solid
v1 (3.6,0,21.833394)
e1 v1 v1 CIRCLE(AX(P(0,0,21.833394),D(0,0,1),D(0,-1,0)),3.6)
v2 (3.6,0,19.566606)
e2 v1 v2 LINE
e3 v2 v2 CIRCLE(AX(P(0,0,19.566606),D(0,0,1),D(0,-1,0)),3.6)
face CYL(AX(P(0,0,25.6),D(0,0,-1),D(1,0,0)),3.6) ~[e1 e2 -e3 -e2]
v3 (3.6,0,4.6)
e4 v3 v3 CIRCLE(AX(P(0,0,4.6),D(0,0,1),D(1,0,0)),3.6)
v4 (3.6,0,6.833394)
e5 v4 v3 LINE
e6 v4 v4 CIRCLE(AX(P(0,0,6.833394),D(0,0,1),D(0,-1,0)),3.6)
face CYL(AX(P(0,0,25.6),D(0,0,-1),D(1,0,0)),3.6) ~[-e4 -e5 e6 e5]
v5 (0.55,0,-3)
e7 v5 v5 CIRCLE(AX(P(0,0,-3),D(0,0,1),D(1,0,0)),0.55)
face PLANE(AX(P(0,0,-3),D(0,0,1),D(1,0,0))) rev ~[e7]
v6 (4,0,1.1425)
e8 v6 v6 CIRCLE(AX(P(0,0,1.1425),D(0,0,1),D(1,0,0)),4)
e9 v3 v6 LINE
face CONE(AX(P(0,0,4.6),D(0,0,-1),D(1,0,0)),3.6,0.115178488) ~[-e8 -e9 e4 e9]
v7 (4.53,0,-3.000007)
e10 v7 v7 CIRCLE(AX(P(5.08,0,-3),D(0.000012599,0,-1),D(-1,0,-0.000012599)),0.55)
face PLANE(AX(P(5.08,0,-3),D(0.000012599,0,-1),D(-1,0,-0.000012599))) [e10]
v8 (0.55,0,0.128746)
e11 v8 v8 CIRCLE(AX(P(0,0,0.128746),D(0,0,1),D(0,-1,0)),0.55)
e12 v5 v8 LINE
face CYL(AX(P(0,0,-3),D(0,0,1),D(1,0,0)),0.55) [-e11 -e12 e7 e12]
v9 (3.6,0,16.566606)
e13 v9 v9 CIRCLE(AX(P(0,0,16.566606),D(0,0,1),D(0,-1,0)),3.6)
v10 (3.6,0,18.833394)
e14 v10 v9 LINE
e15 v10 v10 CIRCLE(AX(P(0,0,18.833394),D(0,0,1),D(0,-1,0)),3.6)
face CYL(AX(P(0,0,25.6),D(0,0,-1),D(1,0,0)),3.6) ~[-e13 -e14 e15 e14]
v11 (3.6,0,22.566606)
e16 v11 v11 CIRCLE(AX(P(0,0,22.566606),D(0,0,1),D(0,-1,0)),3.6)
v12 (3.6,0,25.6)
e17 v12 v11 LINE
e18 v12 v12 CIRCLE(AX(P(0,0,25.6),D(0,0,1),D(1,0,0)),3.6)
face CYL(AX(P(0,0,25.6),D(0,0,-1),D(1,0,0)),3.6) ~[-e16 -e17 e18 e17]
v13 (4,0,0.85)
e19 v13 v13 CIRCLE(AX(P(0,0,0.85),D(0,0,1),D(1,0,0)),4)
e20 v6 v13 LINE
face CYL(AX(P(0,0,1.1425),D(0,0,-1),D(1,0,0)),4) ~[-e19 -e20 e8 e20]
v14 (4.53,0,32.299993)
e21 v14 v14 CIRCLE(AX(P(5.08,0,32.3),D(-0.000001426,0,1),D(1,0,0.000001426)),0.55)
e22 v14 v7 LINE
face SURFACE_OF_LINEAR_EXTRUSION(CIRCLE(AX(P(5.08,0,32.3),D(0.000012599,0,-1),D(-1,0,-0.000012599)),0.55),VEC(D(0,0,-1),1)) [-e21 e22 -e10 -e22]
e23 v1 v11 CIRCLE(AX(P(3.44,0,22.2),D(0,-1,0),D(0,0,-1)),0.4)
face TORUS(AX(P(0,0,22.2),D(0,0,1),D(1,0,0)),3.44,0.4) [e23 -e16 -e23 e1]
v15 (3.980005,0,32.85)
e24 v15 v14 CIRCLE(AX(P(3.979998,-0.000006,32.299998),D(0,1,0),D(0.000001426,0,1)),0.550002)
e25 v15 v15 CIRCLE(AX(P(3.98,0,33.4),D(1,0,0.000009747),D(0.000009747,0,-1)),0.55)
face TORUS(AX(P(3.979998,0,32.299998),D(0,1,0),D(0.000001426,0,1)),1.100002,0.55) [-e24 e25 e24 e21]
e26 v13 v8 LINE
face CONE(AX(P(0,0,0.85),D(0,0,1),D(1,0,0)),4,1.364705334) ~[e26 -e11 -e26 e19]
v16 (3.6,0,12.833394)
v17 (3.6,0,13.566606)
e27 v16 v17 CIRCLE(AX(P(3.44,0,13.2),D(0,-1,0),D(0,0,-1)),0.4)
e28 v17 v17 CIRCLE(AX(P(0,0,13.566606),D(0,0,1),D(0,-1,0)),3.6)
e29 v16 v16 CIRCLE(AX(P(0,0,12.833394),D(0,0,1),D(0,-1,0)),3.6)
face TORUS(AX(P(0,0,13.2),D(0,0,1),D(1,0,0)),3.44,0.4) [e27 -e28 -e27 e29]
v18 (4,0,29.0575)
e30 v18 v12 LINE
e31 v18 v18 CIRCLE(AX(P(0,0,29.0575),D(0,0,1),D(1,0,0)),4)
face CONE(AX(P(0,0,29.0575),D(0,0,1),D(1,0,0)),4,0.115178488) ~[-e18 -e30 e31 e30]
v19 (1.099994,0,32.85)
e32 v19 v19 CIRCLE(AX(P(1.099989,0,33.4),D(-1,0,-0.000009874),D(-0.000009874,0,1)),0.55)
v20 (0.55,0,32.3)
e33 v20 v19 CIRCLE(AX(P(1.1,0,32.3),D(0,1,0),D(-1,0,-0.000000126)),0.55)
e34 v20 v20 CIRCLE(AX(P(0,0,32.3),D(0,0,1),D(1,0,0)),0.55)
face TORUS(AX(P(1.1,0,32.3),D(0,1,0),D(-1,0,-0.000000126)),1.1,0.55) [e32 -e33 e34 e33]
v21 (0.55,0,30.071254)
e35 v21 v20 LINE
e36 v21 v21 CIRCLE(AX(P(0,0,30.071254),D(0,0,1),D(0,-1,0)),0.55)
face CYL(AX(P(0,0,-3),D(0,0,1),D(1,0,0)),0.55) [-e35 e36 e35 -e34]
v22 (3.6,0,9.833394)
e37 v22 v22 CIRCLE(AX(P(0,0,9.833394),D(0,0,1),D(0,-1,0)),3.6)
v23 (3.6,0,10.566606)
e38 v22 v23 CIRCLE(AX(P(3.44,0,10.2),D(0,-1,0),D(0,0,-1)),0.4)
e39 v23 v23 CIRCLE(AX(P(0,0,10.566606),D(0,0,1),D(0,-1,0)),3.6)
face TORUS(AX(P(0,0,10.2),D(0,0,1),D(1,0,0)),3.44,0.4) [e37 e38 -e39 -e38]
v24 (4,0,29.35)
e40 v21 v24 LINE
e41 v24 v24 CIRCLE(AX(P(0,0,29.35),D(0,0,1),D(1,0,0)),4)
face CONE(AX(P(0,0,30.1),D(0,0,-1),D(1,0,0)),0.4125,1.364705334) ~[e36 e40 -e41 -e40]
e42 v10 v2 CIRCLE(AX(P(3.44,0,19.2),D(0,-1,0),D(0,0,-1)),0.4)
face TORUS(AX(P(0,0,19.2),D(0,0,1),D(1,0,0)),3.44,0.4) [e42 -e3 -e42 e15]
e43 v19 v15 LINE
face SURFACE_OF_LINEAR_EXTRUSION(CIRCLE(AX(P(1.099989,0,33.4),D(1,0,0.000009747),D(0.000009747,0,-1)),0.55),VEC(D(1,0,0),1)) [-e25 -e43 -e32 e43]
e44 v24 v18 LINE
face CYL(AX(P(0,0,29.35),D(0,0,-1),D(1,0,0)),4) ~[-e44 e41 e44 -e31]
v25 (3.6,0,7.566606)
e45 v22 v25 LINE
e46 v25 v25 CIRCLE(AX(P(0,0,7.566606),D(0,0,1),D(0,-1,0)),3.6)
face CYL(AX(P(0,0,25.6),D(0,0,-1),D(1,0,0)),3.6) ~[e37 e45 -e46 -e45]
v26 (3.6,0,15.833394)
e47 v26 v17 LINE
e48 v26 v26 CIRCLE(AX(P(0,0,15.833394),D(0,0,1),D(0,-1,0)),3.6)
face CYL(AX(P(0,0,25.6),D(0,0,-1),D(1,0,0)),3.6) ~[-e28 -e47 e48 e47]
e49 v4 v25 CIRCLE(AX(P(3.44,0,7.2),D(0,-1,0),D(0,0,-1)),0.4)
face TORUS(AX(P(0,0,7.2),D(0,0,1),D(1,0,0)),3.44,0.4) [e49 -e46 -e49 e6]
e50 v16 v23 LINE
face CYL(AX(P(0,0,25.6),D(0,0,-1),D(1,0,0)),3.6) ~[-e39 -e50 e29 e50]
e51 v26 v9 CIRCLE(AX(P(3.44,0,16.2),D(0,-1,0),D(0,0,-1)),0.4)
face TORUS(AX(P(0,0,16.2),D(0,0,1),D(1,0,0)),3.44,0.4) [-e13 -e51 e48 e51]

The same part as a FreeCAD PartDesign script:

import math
import FreeCAD as App
import Part
import Sketcher

V = App.Vector
Q = App.Units.Quantity

doc = App.newDocument("Part")
body = doc.addObject("PartDesign::Body", "Body")

sketch1 = body.newObject("Sketcher::SketchObject", "Sketch")
sketch1.AttachmentSupport = (doc.getObject("XZ_Plane"), [""])
sketch1.MapMode = "FlatFace"
sketch1.addGeometry([
    Part.LineSegment(V(0, 30.1, 0), V(0, 0.1, 0)),
    Part.LineSegment(V(0, 0.1, 0), V(0.41, 0.1, 0)),
    Part.LineSegment(V(0.41, 0.1, 0), V(4, 0.85, 0)),
    Part.LineSegment(V(4, 0.85, 0), V(4, 1.14, 0)),
    Part.LineSegment(V(4, 1.14, 0), V(3.6, 4.6, 0)),
    Part.LineSegment(V(3.6, 4.6, 0), V(3.6, 25.6, 0)),
    Part.LineSegment(V(3.6, 25.6, 0), V(4, 29.06, 0)),
    Part.LineSegment(V(4, 29.06, 0), V(4, 29.35, 0)),
    Part.LineSegment(V(4, 29.35, 0), V(0.41, 30.1, 0)),
    Part.LineSegment(V(0.41, 30.1, 0), V(0, 30.1, 0)),
], False)
sketch1.addConstraint([
    Sketcher.Constraint("Coincident", 0, 2, 1, 1),
    Sketcher.Constraint("Coincident", 1, 2, 2, 1),
    Sketcher.Constraint("Coincident", 2, 2, 3, 1),
    Sketcher.Constraint("Coincident", 3, 2, 4, 1),
    Sketcher.Constraint("Coincident", 4, 2, 5, 1),
    Sketcher.Constraint("Coincident", 5, 2, 6, 1),
    Sketcher.Constraint("Coincident", 6, 2, 7, 1),
    Sketcher.Constraint("Coincident", 7, 2, 8, 1),
    Sketcher.Constraint("Coincident", 8, 2, 9, 1),
    Sketcher.Constraint("Coincident", 9, 2, 0, 1),
    Sketcher.Constraint("Vertical", 0),
    Sketcher.Constraint("Horizontal", 1),
    Sketcher.Constraint("Vertical", 3),
    Sketcher.Constraint("Vertical", 5),
    Sketcher.Constraint("Vertical", 7),
    Sketcher.Constraint("Horizontal", 9),
    Sketcher.Constraint("PointOnObject", 0, 2, -2),
    Sketcher.Constraint("Vertical", 3, 2, 6, 2),
    Sketcher.Constraint("Vertical", 1, 2, 8, 2),
    Sketcher.Constraint("Equal", 3, 7),
    Sketcher.Constraint("Equal", 4, 6),
    Sketcher.Constraint("Equal", 2, 8),
    Sketcher.Constraint("DistanceY", 0, 2, 0, 1, Q("30 mm")),
    Sketcher.Constraint("DistanceY", 5, 1, 5, 2, Q("21 mm")),
    Sketcher.Constraint("DistanceX", -1, 1, 2, 2, Q("4 mm")),
    Sketcher.Constraint("DistanceY", -1, 1, 0, 2, Q("0.1 mm")),
    Sketcher.Constraint("DistanceX", -1, 1, 4, 2, Q("3.6 mm")),
    Sketcher.Constraint("DistanceY", 2, 2, 7, 2, Q("28.5 mm")),
    Sketcher.Constraint("DistanceX", 1, 1, 1, 2, Q("0.4125 mm")),
    Sketcher.Constraint("DistanceY", 3, 1, 3, 2, Q("0.2925 mm")),
])
revolution = body.newObject("PartDesign::Revolution", "Revolution")
revolution.Profile = sketch1
revolution.ReferenceAxis = (sketch1, ["V_Axis"])
revolution.Angle = 360
body2 = doc.addObject("PartDesign::Body", "Body001")

sketch2 = body2.newObject("Sketcher::SketchObject", "Sketch001")
sketch2.AttachmentSupport = (doc.getObject("XY_Plane001"), [""])
sketch2.MapMode = "FlatFace"
sketch2.AttachmentOffset = App.Placement(V(0, 0, -2), App.Rotation())
sketch2.addGeometry(Part.Circle(V(0, 0, 0), V(0, 0, 1), 0.6), False)
sketch2.addConstraint([
    Sketcher.Constraint("Coincident", 0, 3, -1, 1),
    Sketcher.Constraint("Diameter", 0, Q("1.1 mm")),
])

sketch3 = body2.newObject("Sketcher::SketchObject", "Sketch002")
sketch3.AttachmentSupport = (doc.getObject("XZ_Plane001"), [""])
sketch3.MapMode = "FlatFace"
sketch3.addGeometry([
    Part.LineSegment(V(0, -3, 0), V(0, 32.3, 0)),
    Part.ArcOfCircle(Part.Circle(V(1.1, 32.3, 0), V(0, 0, 1), 1.1), math.radians(90), math.radians(180)),
    Part.LineSegment(V(1.1, 33.4, 0), V(4, 33.4, 0)),
    Part.ArcOfCircle(Part.Circle(V(4, 32.3, 0), V(0, 0, 1), 1.1), math.radians(0), math.radians(90)),
    Part.LineSegment(V(5.1, 32.3, 0), V(5.1, -3, 0)),
], False)
sketch3.addConstraint([
    Sketcher.Constraint("Tangent", 0, 2, 1, 2),
    Sketcher.Constraint("Coincident", 1, 1, 2, 1),
    Sketcher.Constraint("Tangent", 2, 2, 3, 2),
    Sketcher.Constraint("Tangent", 3, 1, 4, 1),
    Sketcher.Constraint("Vertical", 0),
    Sketcher.Constraint("Horizontal", 2),
    Sketcher.Constraint("Vertical", 4),
    Sketcher.Constraint("Equal", 1, 3),
    Sketcher.Constraint("PointOnObject", 0, 1, -2),
    Sketcher.Constraint("Horizontal", 0, 1, 4, 2),
    Sketcher.Constraint("Radius", 1, Q("1.1 mm")),
    Sketcher.Constraint("DistanceY", 0, 1, 0, 2, Q("35.3 mm")),
    Sketcher.Constraint("DistanceY", 0, 1, -1, 1, Q("3 mm")),
    Sketcher.Constraint("DistanceX", -1, 1, 3, 3, Q("3.979998 mm")),
    Sketcher.Constraint("DistanceX", 2, 1, 2, 2, Q("2.880011 mm")),
])
doc.recompute()

additivepipe = body2.newObject("PartDesign::AdditivePipe", "AdditivePipe")
additivepipe.Profile = sketch2
additivepipe.Spine = (sketch3, ["Edge1", "Edge2", "Edge3", "Edge4", "Edge5"])
body3 = doc.addObject("PartDesign::Body", "Body002")

sketch4 = body3.newObject("Sketcher::SketchObject", "Sketch003")
sketch4.AttachmentSupport = (doc.getObject("XZ_Plane002"), [""])
sketch4.MapMode = "FlatFace"
sketch4.addGeometry([
    Part.LineSegment(V(3.2, 24.8, 0), V(3.2, 4.6, 0)),
    Part.LineSegment(V(3.2, 4.6, 0), V(3.44, 4.6, 0)),
    Part.LineSegment(V(3.44, 4.6, 0), V(3.44, 6.8, 0)),
    Part.ArcOfCircle(Part.Circle(V(3.44, 7.2, 0), V(0, 0, 1), 0.4), math.radians(-90), math.radians(90)),
    Part.LineSegment(V(3.44, 7.6, 0), V(3.44, 9.8, 0)),
    Part.ArcOfCircle(Part.Circle(V(3.44, 10.2, 0), V(0, 0, 1), 0.4), math.radians(-90), math.radians(90)),
    Part.LineSegment(V(3.44, 10.6, 0), V(3.44, 12.8, 0)),
    Part.ArcOfCircle(Part.Circle(V(3.44, 13.2, 0), V(0, 0, 1), 0.4), math.radians(-90), math.radians(90)),
    Part.LineSegment(V(3.44, 13.6, 0), V(3.44, 15.8, 0)),
    Part.ArcOfCircle(Part.Circle(V(3.44, 16.2, 0), V(0, 0, 1), 0.4), math.radians(-90), math.radians(90)),
    Part.LineSegment(V(3.44, 16.6, 0), V(3.44, 18.8, 0)),
    Part.ArcOfCircle(Part.Circle(V(3.44, 19.2, 0), V(0, 0, 1), 0.4), math.radians(-90), math.radians(90)),
    Part.LineSegment(V(3.44, 19.6, 0), V(3.44, 21.8, 0)),
    Part.ArcOfCircle(Part.Circle(V(3.44, 22.2, 0), V(0, 0, 1), 0.4), math.radians(-90), math.radians(90)),
    Part.LineSegment(V(3.44, 22.6, 0), V(3.44, 24.8, 0)),
    Part.LineSegment(V(3.44, 24.8, 0), V(3.2, 24.8, 0)),
], False)
sketch4.addConstraint([
    Sketcher.Constraint("Coincident", 0, 2, 1, 1),
    Sketcher.Constraint("Coincident", 1, 2, 2, 1),
    Sketcher.Constraint("Coincident", 2, 2, 3, 1),
    Sketcher.Constraint("Coincident", 3, 2, 4, 1),
    Sketcher.Constraint("Coincident", 4, 2, 5, 1),
    Sketcher.Constraint("Coincident", 5, 2, 6, 1),
    Sketcher.Constraint("Coincident", 6, 2, 7, 1),
    Sketcher.Constraint("Coincident", 7, 2, 8, 1),
    Sketcher.Constraint("Coincident", 8, 2, 9, 1),
    Sketcher.Constraint("Coincident", 9, 2, 10, 1),
    Sketcher.Constraint("Coincident", 10, 2, 11, 1),
    Sketcher.Constraint("Coincident", 11, 2, 12, 1),
    Sketcher.Constraint("Coincident", 12, 2, 13, 1),
    Sketcher.Constraint("Coincident", 13, 2, 14, 1),
    Sketcher.Constraint("Coincident", 14, 2, 15, 1),
    Sketcher.Constraint("Coincident", 15, 2, 0, 1),
    Sketcher.Constraint("Vertical", 0),
    Sketcher.Constraint("Horizontal", 1),
    Sketcher.Constraint("Vertical", 2),
    Sketcher.Constraint("Vertical", 4),
    Sketcher.Constraint("Vertical", 6),
    Sketcher.Constraint("Vertical", 8),
    Sketcher.Constraint("Vertical", 10),
    Sketcher.Constraint("Vertical", 12),
    Sketcher.Constraint("Vertical", 14),
    Sketcher.Constraint("Horizontal", 15),
    Sketcher.Constraint("Equal", 3, 5),
    Sketcher.Constraint("Equal", 5, 7),
    Sketcher.Constraint("Equal", 7, 9),
    Sketcher.Constraint("Equal", 9, 11),
    Sketcher.Constraint("Equal", 11, 13),
    Sketcher.Constraint("Vertical", 3, 3, 5, 3),
    Sketcher.Constraint("Vertical", 5, 3, 7, 3),
    Sketcher.Constraint("Vertical", 7, 3, 9, 3),
    Sketcher.Constraint("Vertical", 9, 3, 11, 3),
    Sketcher.Constraint("Vertical", 11, 3, 13, 3),
    Sketcher.Constraint("Vertical", 13, 3, 1, 2),
    Sketcher.Constraint("Vertical", 2, 2, 3, 2),
    Sketcher.Constraint("Vertical", 4, 2, 5, 2),
    Sketcher.Constraint("Vertical", 6, 2, 7, 2),
    Sketcher.Constraint("Vertical", 8, 2, 9, 2),
    Sketcher.Constraint("Vertical", 10, 2, 11, 2),
    Sketcher.Constraint("Vertical", 12, 2, 13, 2),
    Sketcher.Constraint("Equal", 2, 4),
    Sketcher.Constraint("Equal", 4, 6),
    Sketcher.Constraint("Equal", 6, 8),
    Sketcher.Constraint("Equal", 8, 10),
    Sketcher.Constraint("Equal", 10, 12),
    Sketcher.Constraint("Equal", 12, 14),
    Sketcher.Constraint("Radius", 3, Q("0.4 mm")),
    Sketcher.Constraint("DistanceY", 0, 2, 0, 1, Q("20.2 mm")),
    Sketcher.Constraint("DistanceX", 1, 1, 1, 2, Q("0.24 mm")),
    Sketcher.Constraint("DistanceY", -1, 1, 3, 3, Q("7.2 mm")),
    Sketcher.Constraint("DistanceX", -1, 1, 0, 2, Q("3.2 mm")),
])
revolution2 = body3.newObject("PartDesign::Revolution", "Revolution001")
revolution2.Profile = sketch4
revolution2.ReferenceAxis = (sketch4, ["V_Axis"])
revolution2.Angle = 360
doc.recompute()

boolean = body3.newObject("PartDesign::Boolean", "Boolean")
boolean.Type = "Fuse"
boolean.addObjects([body])
doc.recompute()

boolean2 = body3.newObject("PartDesign::Boolean", "Boolean001")
boolean2.Type = "Fuse"
boolean2.addObjects([body2])

doc.recompute()
